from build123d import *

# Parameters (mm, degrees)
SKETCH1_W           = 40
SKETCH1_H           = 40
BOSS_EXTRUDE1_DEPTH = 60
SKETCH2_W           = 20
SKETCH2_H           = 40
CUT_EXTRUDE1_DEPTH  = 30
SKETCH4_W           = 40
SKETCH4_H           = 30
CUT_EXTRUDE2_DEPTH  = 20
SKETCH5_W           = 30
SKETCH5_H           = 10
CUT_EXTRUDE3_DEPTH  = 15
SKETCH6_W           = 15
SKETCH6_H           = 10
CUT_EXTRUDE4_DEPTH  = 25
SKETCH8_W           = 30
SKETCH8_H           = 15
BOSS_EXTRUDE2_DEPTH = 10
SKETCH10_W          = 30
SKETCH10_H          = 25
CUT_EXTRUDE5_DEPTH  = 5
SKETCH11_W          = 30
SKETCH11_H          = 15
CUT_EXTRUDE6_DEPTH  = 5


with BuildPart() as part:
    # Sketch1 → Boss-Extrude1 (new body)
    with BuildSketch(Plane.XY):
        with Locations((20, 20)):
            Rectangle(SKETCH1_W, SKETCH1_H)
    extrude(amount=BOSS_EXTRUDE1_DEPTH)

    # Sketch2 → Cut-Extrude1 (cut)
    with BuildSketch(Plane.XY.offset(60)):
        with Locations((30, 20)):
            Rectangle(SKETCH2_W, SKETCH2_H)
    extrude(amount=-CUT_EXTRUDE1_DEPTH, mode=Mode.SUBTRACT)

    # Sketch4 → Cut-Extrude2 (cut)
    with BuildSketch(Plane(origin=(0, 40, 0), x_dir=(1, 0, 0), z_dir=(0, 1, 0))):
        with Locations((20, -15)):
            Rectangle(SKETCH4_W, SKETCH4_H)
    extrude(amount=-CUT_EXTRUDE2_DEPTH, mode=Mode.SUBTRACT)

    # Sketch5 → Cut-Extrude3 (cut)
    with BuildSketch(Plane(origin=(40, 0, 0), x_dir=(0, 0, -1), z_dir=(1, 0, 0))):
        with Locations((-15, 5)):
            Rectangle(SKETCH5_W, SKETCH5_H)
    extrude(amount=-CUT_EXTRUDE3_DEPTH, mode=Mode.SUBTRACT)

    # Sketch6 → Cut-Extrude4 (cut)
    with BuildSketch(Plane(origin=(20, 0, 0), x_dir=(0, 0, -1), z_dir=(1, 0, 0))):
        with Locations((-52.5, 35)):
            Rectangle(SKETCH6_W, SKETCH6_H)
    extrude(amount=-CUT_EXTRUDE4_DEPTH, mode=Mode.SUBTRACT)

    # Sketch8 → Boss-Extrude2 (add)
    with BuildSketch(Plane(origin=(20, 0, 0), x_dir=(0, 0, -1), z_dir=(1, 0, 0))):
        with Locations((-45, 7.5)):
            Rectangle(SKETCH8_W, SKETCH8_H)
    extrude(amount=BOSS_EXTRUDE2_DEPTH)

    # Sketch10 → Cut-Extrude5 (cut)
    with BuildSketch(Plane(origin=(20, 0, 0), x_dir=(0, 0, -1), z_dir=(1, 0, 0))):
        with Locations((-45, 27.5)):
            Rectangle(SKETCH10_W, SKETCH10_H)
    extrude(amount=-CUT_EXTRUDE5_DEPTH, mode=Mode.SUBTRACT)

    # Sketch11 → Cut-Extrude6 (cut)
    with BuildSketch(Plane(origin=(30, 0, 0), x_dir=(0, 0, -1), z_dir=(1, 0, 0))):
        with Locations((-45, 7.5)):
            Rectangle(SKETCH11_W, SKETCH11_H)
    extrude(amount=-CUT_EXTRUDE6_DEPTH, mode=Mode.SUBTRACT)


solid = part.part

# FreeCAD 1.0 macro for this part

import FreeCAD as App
import Part
import Sketcher
Q = App.Units.Quantity


def add_polygon(sketch, points):
    """Adds a closed chain of lines whose ends are joined by coincident constraints."""
    first, n = sketch.GeometryCount, len(points)
    for a, b in zip(points, points[1:] + points[:1]):
        sketch.addGeometry(Part.LineSegment(App.Vector(*a, 0), App.Vector(*b, 0)), False)
    for i in range(n):
        sketch.addConstraint(Sketcher.Constraint("Coincident", first + i, 2, first + (i + 1) % n, 1))

doc = App.newDocument("Part")
body = doc.addObject("PartDesign::Body", "Body")

# Sketch on XY plane
sketch1 = doc.addObject("Sketcher::SketchObject", "Sketch")
body.addObject(sketch1)
sketch1.AttachmentSupport = (doc.XY_Plane, [""])
sketch1.MapMode = "FlatFace"
add_polygon(sketch1, [(0, 40), (0, 0), (40, 0), (40, 40)])  # lines 0-3
sketch1.addConstraint([
    Sketcher.Constraint("Vertical", 0),
    Sketcher.Constraint("Horizontal", 1),
    Sketcher.Constraint("Vertical", 2),
    Sketcher.Constraint("Horizontal", 3),
    Sketcher.Constraint("Coincident", 0, 2, -1, 1),
    Sketcher.Constraint("Equal", 3, 0),
    Sketcher.Constraint("DistanceX", 1, 1, 1, 2, Q("40 mm")),
])
pad1 = doc.addObject("PartDesign::Pad", "Pad")
body.addObject(pad1)
pad1.Profile = sketch1
pad1.Length = 60

# Sketch on XY plane
sketch2 = doc.addObject("Sketcher::SketchObject", "Sketch001")
body.addObject(sketch2)
sketch2.AttachmentSupport = (doc.XY_Plane, [""])
sketch2.MapMode = "FlatFace"
sketch2.AttachmentOffset = App.Placement(App.Vector(0, 0, 60), App.Rotation())
add_polygon(sketch2, [(20, 40), (20, 0), (40, 0), (40, 40)])  # lines 0-3
sketch2.addConstraint([
    Sketcher.Constraint("Vertical", 0),
    Sketcher.Constraint("Horizontal", 1),
    Sketcher.Constraint("Vertical", 2),
    Sketcher.Constraint("Horizontal", 3),
    Sketcher.Constraint("PointOnObject", 0, 2, -1),
    Sketcher.Constraint("DistanceX", 1, 1, 1, 2, Q("20 mm")),
    Sketcher.Constraint("DistanceY", 0, 2, 0, 1, Q("40 mm")),
    Sketcher.Constraint("DistanceX", -1, 1, 0, 2, Q("20 mm")),
])
pocket1 = doc.addObject("PartDesign::Pocket", "Pocket")
body.addObject(pocket1)
pocket1.Profile = sketch2
pocket1.Length = 30

# Sketch on XZ plane
sketch3 = doc.addObject("Sketcher::SketchObject", "Sketch002")
body.addObject(sketch3)
sketch3.AttachmentSupport = (doc.XZ_Plane, [""])
sketch3.MapMode = "FlatFace"
sketch3.AttachmentOffset = App.Placement(App.Vector(0, 0, -40), App.Rotation())
add_polygon(sketch3, [(0, 0), (0, 30), (40, 30), (40, 0)])  # lines 0-3
sketch3.addConstraint([
    Sketcher.Constraint("Vertical", 0),
    Sketcher.Constraint("Horizontal", 1),
    Sketcher.Constraint("Vertical", 2),
    Sketcher.Constraint("Horizontal", 3),
    Sketcher.Constraint("Coincident", 3, 2, -1, 1),
    Sketcher.Constraint("DistanceX", 1, 1, 1, 2, Q("40 mm")),
    Sketcher.Constraint("DistanceY", 0, 1, 0, 2, Q("30 mm")),
])
pocket2 = doc.addObject("PartDesign::Pocket", "Pocket001")
body.addObject(pocket2)
pocket2.Profile = sketch3
pocket2.Length = 20
pocket2.Reversed = True

# Sketch on YZ plane
sketch4 = doc.addObject("Sketcher::SketchObject", "Sketch003")
body.addObject(sketch4)
sketch4.AttachmentSupport = (doc.YZ_Plane, [""])
sketch4.MapMode = "FlatFace"
sketch4.AttachmentOffset = App.Placement(App.Vector(0, 0, 40), App.Rotation())
add_polygon(sketch4, [(10, 30), (0, 30), (0, 0), (10, 0)])  # lines 0-3
sketch4.addConstraint([
    Sketcher.Constraint("Horizontal", 0),
    Sketcher.Constraint("Vertical", 1),
    Sketcher.Constraint("Horizontal", 2),
    Sketcher.Constraint("Vertical", 3),
    Sketcher.Constraint("Coincident", 1, 2, -1, 1),
    Sketcher.Constraint("DistanceX", 0, 2, 0, 1, Q("10 mm")),
    Sketcher.Constraint("DistanceY", 1, 2, 1, 1, Q("30 mm")),
])
pocket3 = doc.addObject("PartDesign::Pocket", "Pocket002")
body.addObject(pocket3)
pocket3.Profile = sketch4
pocket3.Length = 15

# Sketch on YZ plane
sketch5 = doc.addObject("Sketcher::SketchObject", "Sketch004")
body.addObject(sketch5)
sketch5.AttachmentSupport = (doc.YZ_Plane, [""])
sketch5.MapMode = "FlatFace"
sketch5.AttachmentOffset = App.Placement(App.Vector(0, 0, 20), App.Rotation())
add_polygon(sketch5, [(40, 60), (30, 60), (30, 45), (40, 45)])  # lines 0-3
sketch5.addConstraint([
    Sketcher.Constraint("Horizontal", 0),
    Sketcher.Constraint("Vertical", 1),
    Sketcher.Constraint("Horizontal", 2),
    Sketcher.Constraint("Vertical", 3),
    Sketcher.Constraint("DistanceX", 0, 2, 0, 1, Q("10 mm")),
    Sketcher.Constraint("DistanceY", 1, 2, 1, 1, Q("15 mm")),
    Sketcher.Constraint("DistanceX", -1, 1, 0, 2, Q("30 mm")),
    Sketcher.Constraint("DistanceY", -1, 1, 0, 2, Q("60 mm")),
])
pocket4 = doc.addObject("PartDesign::Pocket", "Pocket003")
body.addObject(pocket4)
pocket4.Profile = sketch5
pocket4.Length = 25

# Sketch on YZ plane
sketch6 = doc.addObject("Sketcher::SketchObject", "Sketch005")
body.addObject(sketch6)
sketch6.AttachmentSupport = (doc.YZ_Plane, [""])
sketch6.MapMode = "FlatFace"
sketch6.AttachmentOffset = App.Placement(App.Vector(0, 0, 20), App.Rotation())
add_polygon(sketch6, [(15, 60), (0, 60), (0, 30), (15, 30)])  # lines 0-3
sketch6.addConstraint([
    Sketcher.Constraint("Horizontal", 0),
    Sketcher.Constraint("Vertical", 1),
    Sketcher.Constraint("Horizontal", 2),
    Sketcher.Constraint("Vertical", 3),
    Sketcher.Constraint("PointOnObject", 0, 2, -2),
    Sketcher.Constraint("DistanceX", 0, 2, 0, 1, Q("15 mm")),
    Sketcher.Constraint("DistanceY", 1, 2, 1, 1, Q("30 mm")),
    Sketcher.Constraint("DistanceY", -1, 1, 0, 2, Q("60 mm")),
])
pad2 = doc.addObject("PartDesign::Pad", "Pad001")
body.addObject(pad2)
pad2.Profile = sketch6
pad2.Length = 10

# Sketch on YZ plane
sketch7 = doc.addObject("Sketcher::SketchObject", "Sketch006")
body.addObject(sketch7)
sketch7.AttachmentSupport = (doc.YZ_Plane, [""])
sketch7.MapMode = "FlatFace"
sketch7.AttachmentOffset = App.Placement(App.Vector(0, 0, 20), App.Rotation())
add_polygon(sketch7, [(40, 60), (15, 60), (15, 30), (40, 30)])  # lines 0-3
sketch7.addConstraint([
    Sketcher.Constraint("Horizontal", 0),
    Sketcher.Constraint("Vertical", 1),
    Sketcher.Constraint("Horizontal", 2),
    Sketcher.Constraint("Vertical", 3),
    Sketcher.Constraint("DistanceX", 0, 2, 0, 1, Q("25 mm")),
    Sketcher.Constraint("DistanceY", 1, 2, 1, 1, Q("30 mm")),
    Sketcher.Constraint("DistanceX", -1, 1, 0, 2, Q("15 mm")),
    Sketcher.Constraint("DistanceY", -1, 1, 0, 2, Q("60 mm")),
])
pocket5 = doc.addObject("PartDesign::Pocket", "Pocket004")
body.addObject(pocket5)
pocket5.Profile = sketch7
pocket5.Length = 5

# Sketch on YZ plane
sketch8 = doc.addObject("Sketcher::SketchObject", "Sketch007")
body.addObject(sketch8)
sketch8.AttachmentSupport = (doc.YZ_Plane, [""])
sketch8.MapMode = "FlatFace"
sketch8.AttachmentOffset = App.Placement(App.Vector(0, 0, 30), App.Rotation())
add_polygon(sketch8, [(15, 60), (0, 60), (0, 30), (15, 30)])  # lines 0-3
sketch8.addConstraint([
    Sketcher.Constraint("Horizontal", 0),
    Sketcher.Constraint("Vertical", 1),
    Sketcher.Constraint("Horizontal", 2),
    Sketcher.Constraint("Vertical", 3),
    Sketcher.Constraint("PointOnObject", 0, 2, -2),
    Sketcher.Constraint("DistanceX", 0, 2, 0, 1, Q("15 mm")),
    Sketcher.Constraint("DistanceY", 1, 2, 1, 1, Q("30 mm")),
    Sketcher.Constraint("DistanceY", -1, 1, 0, 2, Q("60 mm")),
])
pocket6 = doc.addObject("PartDesign::Pocket", "Pocket005")
body.addObject(pocket6)
pocket6.Profile = sketch8
pocket6.Length = 5

doc.recompute()
